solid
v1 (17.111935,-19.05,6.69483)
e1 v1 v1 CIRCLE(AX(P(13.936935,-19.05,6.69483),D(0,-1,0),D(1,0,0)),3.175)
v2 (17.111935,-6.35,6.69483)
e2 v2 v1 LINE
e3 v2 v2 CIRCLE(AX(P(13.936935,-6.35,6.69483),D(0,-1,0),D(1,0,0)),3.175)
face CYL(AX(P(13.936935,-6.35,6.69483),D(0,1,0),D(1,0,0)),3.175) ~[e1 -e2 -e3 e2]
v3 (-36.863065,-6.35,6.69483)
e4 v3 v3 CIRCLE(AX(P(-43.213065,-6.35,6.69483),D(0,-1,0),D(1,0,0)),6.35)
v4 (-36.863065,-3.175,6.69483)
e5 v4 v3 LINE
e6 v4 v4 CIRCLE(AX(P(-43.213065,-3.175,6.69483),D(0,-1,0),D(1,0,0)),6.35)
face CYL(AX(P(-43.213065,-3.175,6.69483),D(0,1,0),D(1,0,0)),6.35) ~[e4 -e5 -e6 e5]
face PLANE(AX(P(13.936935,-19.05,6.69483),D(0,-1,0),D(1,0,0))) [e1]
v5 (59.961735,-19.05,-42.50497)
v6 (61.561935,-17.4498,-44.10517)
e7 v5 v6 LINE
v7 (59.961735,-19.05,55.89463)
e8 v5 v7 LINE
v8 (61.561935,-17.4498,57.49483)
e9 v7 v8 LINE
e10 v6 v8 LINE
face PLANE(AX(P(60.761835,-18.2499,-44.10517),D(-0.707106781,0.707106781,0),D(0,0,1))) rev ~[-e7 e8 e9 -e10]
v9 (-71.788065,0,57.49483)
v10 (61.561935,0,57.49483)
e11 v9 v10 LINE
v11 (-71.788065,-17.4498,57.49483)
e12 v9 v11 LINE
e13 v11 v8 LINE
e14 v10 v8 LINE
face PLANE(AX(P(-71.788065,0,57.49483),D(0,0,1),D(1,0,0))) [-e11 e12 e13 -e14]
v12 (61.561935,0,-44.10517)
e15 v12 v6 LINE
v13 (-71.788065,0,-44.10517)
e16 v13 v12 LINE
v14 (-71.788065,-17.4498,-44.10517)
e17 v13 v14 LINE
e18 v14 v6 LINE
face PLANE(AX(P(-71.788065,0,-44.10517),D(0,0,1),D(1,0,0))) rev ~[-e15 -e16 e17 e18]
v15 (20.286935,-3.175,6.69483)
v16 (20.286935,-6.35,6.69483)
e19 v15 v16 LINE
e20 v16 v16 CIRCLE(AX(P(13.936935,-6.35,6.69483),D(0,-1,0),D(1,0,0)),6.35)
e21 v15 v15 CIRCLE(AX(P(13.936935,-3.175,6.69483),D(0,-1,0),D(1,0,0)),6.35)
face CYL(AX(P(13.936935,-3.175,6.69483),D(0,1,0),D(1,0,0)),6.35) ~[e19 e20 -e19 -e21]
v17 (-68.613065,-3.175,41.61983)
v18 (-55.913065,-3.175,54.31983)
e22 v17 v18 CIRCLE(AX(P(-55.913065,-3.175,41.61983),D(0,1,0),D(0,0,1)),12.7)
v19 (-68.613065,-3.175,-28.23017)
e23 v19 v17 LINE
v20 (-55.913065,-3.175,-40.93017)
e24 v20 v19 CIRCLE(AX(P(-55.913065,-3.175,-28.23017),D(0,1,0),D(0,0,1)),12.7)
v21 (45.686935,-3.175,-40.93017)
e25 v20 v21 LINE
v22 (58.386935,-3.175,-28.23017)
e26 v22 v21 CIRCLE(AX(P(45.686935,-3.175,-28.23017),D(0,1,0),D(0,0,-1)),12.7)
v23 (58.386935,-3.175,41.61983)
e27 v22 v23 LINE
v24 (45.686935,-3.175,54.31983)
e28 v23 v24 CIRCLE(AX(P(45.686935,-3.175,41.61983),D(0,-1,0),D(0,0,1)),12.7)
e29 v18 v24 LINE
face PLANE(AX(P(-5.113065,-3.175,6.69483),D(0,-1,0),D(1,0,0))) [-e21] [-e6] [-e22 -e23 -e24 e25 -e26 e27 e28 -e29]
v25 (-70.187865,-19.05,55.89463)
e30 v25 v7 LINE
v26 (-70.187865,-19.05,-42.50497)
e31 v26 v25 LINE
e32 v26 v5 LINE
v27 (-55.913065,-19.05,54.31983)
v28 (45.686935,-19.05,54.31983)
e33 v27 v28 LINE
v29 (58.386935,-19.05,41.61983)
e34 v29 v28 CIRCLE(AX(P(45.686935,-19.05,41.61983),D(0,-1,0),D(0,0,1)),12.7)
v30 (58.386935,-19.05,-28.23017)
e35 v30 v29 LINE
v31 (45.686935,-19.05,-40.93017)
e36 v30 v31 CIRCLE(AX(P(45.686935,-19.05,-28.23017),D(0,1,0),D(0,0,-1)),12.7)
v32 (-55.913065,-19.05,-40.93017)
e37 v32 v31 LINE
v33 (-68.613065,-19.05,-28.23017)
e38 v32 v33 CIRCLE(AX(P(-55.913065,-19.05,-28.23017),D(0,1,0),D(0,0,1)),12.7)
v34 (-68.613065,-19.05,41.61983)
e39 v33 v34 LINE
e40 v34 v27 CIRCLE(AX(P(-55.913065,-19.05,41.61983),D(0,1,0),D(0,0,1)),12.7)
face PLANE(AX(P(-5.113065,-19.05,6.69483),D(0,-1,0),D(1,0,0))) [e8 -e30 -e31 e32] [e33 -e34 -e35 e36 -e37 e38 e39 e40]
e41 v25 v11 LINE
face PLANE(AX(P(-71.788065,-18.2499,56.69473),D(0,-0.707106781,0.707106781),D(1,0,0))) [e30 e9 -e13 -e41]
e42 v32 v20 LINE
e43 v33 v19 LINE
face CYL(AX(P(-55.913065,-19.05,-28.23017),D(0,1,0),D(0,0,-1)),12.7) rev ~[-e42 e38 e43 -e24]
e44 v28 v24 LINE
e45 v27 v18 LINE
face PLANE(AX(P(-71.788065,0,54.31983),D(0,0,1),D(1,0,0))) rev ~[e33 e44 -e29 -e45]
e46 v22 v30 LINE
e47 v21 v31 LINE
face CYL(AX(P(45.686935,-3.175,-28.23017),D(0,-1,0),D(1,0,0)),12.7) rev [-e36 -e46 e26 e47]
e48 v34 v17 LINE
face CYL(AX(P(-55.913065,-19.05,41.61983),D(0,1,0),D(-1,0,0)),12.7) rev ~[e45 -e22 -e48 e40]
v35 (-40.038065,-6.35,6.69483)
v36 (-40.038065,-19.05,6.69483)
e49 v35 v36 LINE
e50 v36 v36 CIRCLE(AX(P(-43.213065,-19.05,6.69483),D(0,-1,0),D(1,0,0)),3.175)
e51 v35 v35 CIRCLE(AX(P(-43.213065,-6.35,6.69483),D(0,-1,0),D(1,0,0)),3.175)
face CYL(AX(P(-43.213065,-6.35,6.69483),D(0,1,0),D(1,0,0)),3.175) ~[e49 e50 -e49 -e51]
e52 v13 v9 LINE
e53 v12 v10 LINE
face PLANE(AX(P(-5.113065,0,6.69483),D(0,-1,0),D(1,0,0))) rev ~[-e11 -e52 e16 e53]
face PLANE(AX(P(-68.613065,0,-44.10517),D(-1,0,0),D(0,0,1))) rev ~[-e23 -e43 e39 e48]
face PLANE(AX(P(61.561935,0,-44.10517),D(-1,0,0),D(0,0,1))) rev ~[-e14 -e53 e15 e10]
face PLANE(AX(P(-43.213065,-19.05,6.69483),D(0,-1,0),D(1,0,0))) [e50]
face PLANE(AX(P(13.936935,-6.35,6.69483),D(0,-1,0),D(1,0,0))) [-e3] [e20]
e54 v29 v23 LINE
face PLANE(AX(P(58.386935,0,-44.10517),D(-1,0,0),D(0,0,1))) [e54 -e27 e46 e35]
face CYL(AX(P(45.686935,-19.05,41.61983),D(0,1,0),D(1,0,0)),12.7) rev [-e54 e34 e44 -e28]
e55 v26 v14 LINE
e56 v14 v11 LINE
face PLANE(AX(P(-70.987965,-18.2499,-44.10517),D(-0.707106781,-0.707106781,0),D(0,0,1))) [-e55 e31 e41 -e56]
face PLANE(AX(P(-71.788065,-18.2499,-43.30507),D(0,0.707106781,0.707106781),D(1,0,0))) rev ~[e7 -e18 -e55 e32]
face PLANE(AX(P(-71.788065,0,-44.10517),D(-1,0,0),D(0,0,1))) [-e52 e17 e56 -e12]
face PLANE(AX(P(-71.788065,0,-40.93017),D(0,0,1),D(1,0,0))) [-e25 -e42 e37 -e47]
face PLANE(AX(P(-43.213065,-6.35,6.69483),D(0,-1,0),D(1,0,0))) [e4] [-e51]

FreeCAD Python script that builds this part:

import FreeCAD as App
import Part
import Sketcher
Q = App.Units.Quantity


def edges_at(feature, points):
    """Names of the edges that pass closest to the given points."""
    edges = feature.Shape.Edges
    near = lambda p: min(range(len(edges)), key=lambda i: edges[i].distToShape(Part.Vertex(*p))[0])
    return sorted({f"Edge{near(p) + 1}" for p in points})


def faces_at(feature, points):
    """Names of the faces that lie closest to the given points."""
    faces = feature.Shape.Faces
    near = lambda p: min(range(len(faces)), key=lambda i: faces[i].distToShape(Part.Vertex(*p))[0])
    return sorted({f"Face{near(p) + 1}" for p in points})


def add_polygon(sketch, points):
    """Adds a closed chain of lines whose ends are joined by coincident constraints."""
    first, n = sketch.GeometryCount, len(points)
    for a, b in zip(points, points[1:] + points[:1]):
        sketch.addGeometry(Part.LineSegment(App.Vector(*a, 0), App.Vector(*b, 0)), False)
    for i in range(n):
        sketch.addConstraint(Sketcher.Constraint("Coincident", first + i, 2, first + (i + 1) % n, 1))

doc = App.newDocument("Part")
body = doc.addObject("PartDesign::Body", "Body")

# Sketch on XZ plane
sketch1 = body.newObject("Sketcher::SketchObject", "Sketch")
sketch1.AttachmentSupport = (doc.getObject("XZ_Plane"), [""])
sketch1.MapMode = "FlatFace"
add_polygon(sketch1, [(-72, 57), (-72, -44), (62, -44), (62, 57)])  # lines 0-3
sketch1.addConstraint([
    Sketcher.Constraint("Vertical", 0),
    Sketcher.Constraint("Horizontal", 1),
    Sketcher.Constraint("Vertical", 2),
    Sketcher.Constraint("Horizontal", 3),
    Sketcher.Constraint("DistanceY", 0, 2, 0, 1, Q("4 in")),
    Sketcher.Constraint("DistanceX", 1, 1, 1, 2, Q("5.25 in")),
    Sketcher.Constraint("DistanceY", 0, 2, -1, 1, 44.10517),
    Sketcher.Constraint("DistanceX", 0, 2, -1, 1, 71.788065),
])
pad1 = body.newObject("PartDesign::Pad", "Pad")
pad1.Profile = sketch1
pad1.Length = Q("0.75 in")
doc.recompute()

thickness = body.newObject("PartDesign::Thickness", "Thickness")
thickness.Base = (pad1, faces_at(pad1, [(-5.113, -19.05, 6.695)]))
thickness.Value = Q("0.125 in")
thickness.Reversed = True
thickness.Join = "Arc"

# Sketch on XZ plane
sketch2 = body.newObject("Sketcher::SketchObject", "Sketch001")
sketch2.AttachmentSupport = (doc.getObject("XZ_Plane"), [""])
sketch2.MapMode = "FlatFace"
sketch2.AttachmentOffset = App.Placement(App.Vector(0, 0, 0.125 * 25.4), App.Rotation())
sketch2.addGeometry([
    Part.Circle(App.Vector(-43, 7, 0), App.Vector(0, 0, 1), 6),
    Part.Circle(App.Vector(14, 7, 0), App.Vector(0, 0, 1), 6),
], False)
sketch2.addConstraint([
    Sketcher.Constraint("Equal", 0, 1),
    Sketcher.Constraint("Horizontal", 0, 3, 1, 3),
    Sketcher.Constraint("Diameter", 0, Q("0.5 in")),
    Sketcher.Constraint("DistanceX", 0, 3, 1, 3, Q("2.25 in")),
    Sketcher.Constraint("DistanceY", -1, 1, 0, 3, 6.69483),
    Sketcher.Constraint("DistanceX", 0, 3, -1, 1, 43.213065),
])
pad2 = body.newObject("PartDesign::Pad", "Pad001")
pad2.Profile = sketch2
pad2.Length = Q("0.125 in")

# Sketch on XZ plane
sketch3 = body.newObject("Sketcher::SketchObject", "Sketch002")
sketch3.AttachmentSupport = (doc.getObject("XZ_Plane"), [""])
sketch3.MapMode = "FlatFace"
sketch3.AttachmentOffset = App.Placement(App.Vector(0, 0, 0.25 * 25.4), App.Rotation())
sketch3.addGeometry(Part.Circle(App.Vector(-43.2, 6.7, 0), App.Vector(0, 0, 1), 3.2), False)
sketch3.addConstraint([
    Sketcher.Constraint("Diameter", 0, Q("0.25 in")),
    Sketcher.Constraint("DistanceY", -1, 1, 0, 3, 6.69483),
    Sketcher.Constraint("DistanceX", 0, 3, -1, 1, 43.213065),
])
pad3 = body.newObject("PartDesign::Pad", "Pad002")
pad3.Profile = sketch3
pad3.Length = Q("0.5 in")

# Sketch on XZ plane
sketch4 = body.newObject("Sketcher::SketchObject", "Sketch003")
sketch4.AttachmentSupport = (doc.getObject("XZ_Plane"), [""])
sketch4.MapMode = "FlatFace"
sketch4.AttachmentOffset = App.Placement(App.Vector(0, 0, 0.25 * 25.4), App.Rotation())
sketch4.addGeometry(Part.Circle(App.Vector(13.9, 6.7, 0), App.Vector(0, 0, 1), 3.2), False)
sketch4.addConstraint([
    Sketcher.Constraint("Diameter", 0, Q("0.25 in")),
    Sketcher.Constraint("DistanceY", -1, 1, 0, 3, 6.69483),
    Sketcher.Constraint("DistanceX", -1, 1, 0, 3, 13.936935),
])
pad4 = body.newObject("PartDesign::Pad", "Pad003")
pad4.Profile = sketch4
pad4.Length = Q("0.5 in")
doc.recompute()

fillet = body.newObject("PartDesign::Fillet", "Fillet")
fillet.Base = (pad4, edges_at(pad4, [
    (-68.613, -11.113, -40.93),
    (58.387, -11.113, -40.93),
    (-68.613, -11.113, 54.32),
    (58.387, -11.113, 54.32),
]))
fillet.Radius = Q("0.5 in")
doc.recompute()

chamfer = body.newObject("PartDesign::Chamfer", "Chamfer")
chamfer.Base = (fillet, edges_at(fillet, [
    (61.562, -19.05, 6.695),
    (-5.113, -19.05, -44.105),
    (-71.788, -19.05, 6.695),
    (-5.113, -19.05, 57.495),
]))
chamfer.Size = Q("0.063 in")

doc.recompute()
